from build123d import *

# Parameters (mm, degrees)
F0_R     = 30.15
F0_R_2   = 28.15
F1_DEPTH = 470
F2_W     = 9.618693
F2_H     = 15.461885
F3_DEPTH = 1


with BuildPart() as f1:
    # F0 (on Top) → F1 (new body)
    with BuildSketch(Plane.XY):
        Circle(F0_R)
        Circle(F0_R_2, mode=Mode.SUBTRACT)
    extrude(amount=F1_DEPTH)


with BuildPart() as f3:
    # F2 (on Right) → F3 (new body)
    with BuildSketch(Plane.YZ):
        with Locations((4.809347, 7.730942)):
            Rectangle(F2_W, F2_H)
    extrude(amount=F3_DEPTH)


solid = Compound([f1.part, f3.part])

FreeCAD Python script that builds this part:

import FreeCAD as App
import Part
import Sketcher
from FreeCAD import Vector

doc = App.newDocument("Part")
body = doc.addObject("PartDesign::Body", "Body")

sketch1 = body.newObject("Sketcher::SketchObject", "Sketch")
sketch1.AttachmentSupport = (doc.getObject("XY_Plane"), [""])
sketch1.MapMode = "FlatFace"
sketch1.addGeometry(Part.Circle(Vector(0, 0, 0), Vector(0, 0, 1), 30), False)
sketch1.addGeometry(Part.Circle(Vector(0, 0, 0), Vector(0, 0, 1), 28), False)
sketch1.addConstraint(Sketcher.Constraint("Coincident", 0, 3, -1, 1))
sketch1.addConstraint(Sketcher.Constraint("Coincident", 1, 3, -1, 1))
sketch1.addConstraint(Sketcher.Constraint("Diameter", 0, 60.3))
sketch1.addConstraint(Sketcher.Constraint("Diameter", 1, 56.3))
pad1 = body.newObject("PartDesign::Pad", "Pad")
pad1.Profile = sketch1
pad1.Length = 470
body2 = doc.addObject("PartDesign::Body", "Body001")

sketch2 = body2.newObject("Sketcher::SketchObject", "Sketch001")
sketch2.AttachmentSupport = (doc.getObject("YZ_Plane001"), [""])
sketch2.MapMode = "FlatFace"
sketch2.addGeometry(Part.LineSegment(Vector(0, 15, 0), Vector(0, 0, 0)), False)
sketch2.addGeometry(Part.LineSegment(Vector(0, 0, 0), Vector(10, 0, 0)), False)
sketch2.addGeometry(Part.LineSegment(Vector(10, 0, 0), Vector(10, 15, 0)), False)
sketch2.addGeometry(Part.LineSegment(Vector(10, 15, 0), Vector(0, 15, 0)), False)
sketch2.addConstraint(Sketcher.Constraint("Coincident", 0, 2, 1, 1))
sketch2.addConstraint(Sketcher.Constraint("Coincident", 1, 2, 2, 1))
sketch2.addConstraint(Sketcher.Constraint("Coincident", 2, 2, 3, 1))
sketch2.addConstraint(Sketcher.Constraint("Coincident", 3, 2, 0, 1))
sketch2.addConstraint(Sketcher.Constraint("Vertical", 0))
sketch2.addConstraint(Sketcher.Constraint("Horizontal", 1))
sketch2.addConstraint(Sketcher.Constraint("Vertical", 2))
sketch2.addConstraint(Sketcher.Constraint("Horizontal", 3))
sketch2.addConstraint(Sketcher.Constraint("Coincident", 0, 2, -1, 1))
sketch2.addConstraint(Sketcher.Constraint("DistanceX", 1, 1, 1, 2, 9.618693))
sketch2.addConstraint(Sketcher.Constraint("DistanceY", 0, 2, 0, 1, 15.461885))
pad2 = body2.newObject("PartDesign::Pad", "Pad001")
pad2.Profile = sketch2
pad2.Length = 1

doc.recompute()
